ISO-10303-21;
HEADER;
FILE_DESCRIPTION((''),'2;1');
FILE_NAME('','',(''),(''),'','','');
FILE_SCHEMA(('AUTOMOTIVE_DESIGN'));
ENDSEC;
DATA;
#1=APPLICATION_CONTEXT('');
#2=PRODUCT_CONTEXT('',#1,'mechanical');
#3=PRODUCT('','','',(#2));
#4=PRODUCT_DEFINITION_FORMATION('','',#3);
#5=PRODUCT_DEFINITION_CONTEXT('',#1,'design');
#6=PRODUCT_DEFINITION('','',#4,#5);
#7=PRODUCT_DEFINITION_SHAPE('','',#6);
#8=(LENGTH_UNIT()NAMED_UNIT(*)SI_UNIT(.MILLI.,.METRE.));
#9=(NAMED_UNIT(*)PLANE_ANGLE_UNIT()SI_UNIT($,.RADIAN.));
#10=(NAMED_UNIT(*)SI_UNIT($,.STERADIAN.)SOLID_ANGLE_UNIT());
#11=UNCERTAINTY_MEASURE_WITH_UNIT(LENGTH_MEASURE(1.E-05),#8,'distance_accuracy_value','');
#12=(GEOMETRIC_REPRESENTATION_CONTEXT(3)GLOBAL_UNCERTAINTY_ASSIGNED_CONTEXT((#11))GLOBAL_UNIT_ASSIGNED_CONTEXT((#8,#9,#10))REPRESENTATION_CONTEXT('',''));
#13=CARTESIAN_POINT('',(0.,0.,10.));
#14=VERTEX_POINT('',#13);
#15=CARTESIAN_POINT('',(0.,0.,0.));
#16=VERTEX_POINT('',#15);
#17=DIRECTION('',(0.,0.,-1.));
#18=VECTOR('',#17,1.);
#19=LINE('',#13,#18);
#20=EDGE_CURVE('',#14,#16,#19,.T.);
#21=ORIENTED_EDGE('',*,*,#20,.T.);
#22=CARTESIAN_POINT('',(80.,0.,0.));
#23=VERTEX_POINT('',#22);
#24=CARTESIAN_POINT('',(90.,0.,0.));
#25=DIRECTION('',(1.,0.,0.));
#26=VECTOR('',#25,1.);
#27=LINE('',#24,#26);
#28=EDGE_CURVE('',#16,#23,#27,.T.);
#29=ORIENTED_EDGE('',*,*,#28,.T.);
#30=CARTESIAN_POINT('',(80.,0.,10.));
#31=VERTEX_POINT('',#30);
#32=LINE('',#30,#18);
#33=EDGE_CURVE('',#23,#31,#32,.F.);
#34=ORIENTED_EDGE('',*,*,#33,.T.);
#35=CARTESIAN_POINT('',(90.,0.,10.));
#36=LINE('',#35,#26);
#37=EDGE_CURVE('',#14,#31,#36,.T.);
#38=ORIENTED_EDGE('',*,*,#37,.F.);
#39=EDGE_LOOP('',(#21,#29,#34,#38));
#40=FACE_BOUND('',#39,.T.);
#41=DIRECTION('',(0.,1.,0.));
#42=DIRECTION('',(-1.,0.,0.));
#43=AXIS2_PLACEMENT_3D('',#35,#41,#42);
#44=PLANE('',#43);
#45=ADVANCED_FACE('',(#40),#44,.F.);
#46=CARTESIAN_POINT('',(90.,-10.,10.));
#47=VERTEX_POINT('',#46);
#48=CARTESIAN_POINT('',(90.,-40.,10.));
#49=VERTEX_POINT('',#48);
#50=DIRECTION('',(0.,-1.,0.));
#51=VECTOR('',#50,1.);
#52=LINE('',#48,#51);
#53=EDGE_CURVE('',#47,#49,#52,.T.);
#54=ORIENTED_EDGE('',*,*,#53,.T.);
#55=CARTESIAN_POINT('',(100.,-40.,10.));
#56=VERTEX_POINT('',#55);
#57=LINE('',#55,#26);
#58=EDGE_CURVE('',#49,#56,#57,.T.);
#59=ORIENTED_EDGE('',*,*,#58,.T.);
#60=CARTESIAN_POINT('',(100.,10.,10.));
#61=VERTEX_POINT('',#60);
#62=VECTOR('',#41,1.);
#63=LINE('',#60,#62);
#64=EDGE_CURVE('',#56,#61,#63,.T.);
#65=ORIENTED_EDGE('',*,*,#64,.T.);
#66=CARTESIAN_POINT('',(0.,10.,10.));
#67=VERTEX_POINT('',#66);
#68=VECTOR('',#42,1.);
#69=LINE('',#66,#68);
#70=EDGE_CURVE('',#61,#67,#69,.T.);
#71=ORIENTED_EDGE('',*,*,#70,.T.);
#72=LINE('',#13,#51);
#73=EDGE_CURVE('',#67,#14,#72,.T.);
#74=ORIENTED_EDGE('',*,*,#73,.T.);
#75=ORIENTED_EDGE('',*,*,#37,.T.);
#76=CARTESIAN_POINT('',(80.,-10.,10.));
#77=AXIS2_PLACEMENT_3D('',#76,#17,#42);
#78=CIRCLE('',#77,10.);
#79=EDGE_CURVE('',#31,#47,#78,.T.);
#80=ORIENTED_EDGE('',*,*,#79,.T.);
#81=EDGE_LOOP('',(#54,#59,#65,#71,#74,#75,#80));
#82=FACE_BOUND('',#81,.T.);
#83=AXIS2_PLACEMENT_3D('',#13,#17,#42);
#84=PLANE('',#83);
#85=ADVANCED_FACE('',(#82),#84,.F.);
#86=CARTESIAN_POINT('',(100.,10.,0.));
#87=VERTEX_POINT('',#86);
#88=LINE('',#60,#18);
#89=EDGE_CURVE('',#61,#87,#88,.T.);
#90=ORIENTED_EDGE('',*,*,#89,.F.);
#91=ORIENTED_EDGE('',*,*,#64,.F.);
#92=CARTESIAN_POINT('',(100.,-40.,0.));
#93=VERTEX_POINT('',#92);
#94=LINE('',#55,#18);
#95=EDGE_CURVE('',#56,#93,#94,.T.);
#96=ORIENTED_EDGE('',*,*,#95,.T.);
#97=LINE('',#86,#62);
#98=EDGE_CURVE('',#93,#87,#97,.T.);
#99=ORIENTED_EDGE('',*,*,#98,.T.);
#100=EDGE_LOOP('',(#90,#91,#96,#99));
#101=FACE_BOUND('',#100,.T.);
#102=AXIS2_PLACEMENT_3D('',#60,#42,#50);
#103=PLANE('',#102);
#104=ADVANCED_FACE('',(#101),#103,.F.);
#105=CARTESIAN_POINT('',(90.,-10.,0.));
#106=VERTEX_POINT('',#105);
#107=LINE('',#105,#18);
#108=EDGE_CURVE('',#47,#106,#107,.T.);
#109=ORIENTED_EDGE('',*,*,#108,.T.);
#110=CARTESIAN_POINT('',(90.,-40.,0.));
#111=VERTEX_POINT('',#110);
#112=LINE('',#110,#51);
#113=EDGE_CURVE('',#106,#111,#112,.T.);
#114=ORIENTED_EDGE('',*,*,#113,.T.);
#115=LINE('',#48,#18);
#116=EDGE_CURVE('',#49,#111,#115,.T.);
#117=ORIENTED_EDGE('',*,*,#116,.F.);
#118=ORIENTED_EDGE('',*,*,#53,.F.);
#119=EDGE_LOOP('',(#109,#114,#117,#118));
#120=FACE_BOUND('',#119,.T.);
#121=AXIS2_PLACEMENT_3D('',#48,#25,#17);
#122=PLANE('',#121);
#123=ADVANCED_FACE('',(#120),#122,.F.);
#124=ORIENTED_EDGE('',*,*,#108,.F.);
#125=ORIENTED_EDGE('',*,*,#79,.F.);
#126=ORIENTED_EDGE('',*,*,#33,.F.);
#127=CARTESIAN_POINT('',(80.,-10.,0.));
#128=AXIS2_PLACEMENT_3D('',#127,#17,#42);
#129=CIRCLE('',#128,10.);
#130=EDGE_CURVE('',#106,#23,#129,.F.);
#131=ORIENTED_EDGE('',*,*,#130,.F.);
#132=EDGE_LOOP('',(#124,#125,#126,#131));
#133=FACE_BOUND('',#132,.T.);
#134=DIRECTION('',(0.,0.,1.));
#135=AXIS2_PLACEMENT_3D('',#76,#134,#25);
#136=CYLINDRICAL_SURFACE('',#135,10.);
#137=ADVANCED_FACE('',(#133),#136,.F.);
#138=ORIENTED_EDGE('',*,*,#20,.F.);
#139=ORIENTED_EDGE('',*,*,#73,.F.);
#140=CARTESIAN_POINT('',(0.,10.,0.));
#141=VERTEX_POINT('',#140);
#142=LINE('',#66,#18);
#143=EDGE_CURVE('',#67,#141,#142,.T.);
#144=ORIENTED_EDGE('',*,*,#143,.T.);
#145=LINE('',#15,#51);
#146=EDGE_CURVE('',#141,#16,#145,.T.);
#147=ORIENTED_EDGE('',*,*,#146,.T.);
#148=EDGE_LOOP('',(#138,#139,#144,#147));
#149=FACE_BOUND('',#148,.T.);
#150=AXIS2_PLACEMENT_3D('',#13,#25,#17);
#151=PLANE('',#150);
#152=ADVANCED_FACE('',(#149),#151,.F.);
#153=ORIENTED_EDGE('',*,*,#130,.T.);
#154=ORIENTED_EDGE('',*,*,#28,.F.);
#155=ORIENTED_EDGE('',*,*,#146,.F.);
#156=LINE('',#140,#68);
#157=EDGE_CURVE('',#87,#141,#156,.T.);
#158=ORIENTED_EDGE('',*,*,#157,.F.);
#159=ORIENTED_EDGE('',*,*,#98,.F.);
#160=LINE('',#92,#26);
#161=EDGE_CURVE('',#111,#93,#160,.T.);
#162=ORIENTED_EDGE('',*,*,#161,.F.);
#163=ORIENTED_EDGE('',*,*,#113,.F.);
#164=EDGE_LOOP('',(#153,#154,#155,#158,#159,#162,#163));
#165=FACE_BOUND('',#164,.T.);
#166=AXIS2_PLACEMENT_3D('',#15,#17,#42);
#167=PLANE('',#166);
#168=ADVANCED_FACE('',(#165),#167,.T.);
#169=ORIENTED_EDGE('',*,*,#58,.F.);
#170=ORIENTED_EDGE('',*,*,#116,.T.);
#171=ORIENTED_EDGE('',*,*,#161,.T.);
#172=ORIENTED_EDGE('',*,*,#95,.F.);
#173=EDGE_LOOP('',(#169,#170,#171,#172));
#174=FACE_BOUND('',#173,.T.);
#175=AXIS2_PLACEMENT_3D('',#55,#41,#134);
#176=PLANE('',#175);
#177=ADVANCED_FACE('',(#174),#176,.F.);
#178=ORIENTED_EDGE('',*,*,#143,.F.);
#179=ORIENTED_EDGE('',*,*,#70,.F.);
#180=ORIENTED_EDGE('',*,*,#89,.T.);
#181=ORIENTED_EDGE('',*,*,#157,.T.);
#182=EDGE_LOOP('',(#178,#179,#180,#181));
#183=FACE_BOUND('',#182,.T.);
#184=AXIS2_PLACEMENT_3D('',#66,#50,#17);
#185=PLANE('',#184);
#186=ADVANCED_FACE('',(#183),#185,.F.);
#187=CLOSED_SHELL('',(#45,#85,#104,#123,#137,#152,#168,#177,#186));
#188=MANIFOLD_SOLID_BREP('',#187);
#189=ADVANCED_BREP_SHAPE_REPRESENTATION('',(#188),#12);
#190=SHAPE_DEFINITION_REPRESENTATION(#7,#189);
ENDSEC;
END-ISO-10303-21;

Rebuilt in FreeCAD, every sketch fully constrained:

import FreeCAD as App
import Part
import Sketcher


def edges_at(feature, points):
    """Names of the edges that pass closest to the given points."""
    edges = feature.Shape.Edges
    near = lambda p: min(range(len(edges)), key=lambda i: edges[i].distToShape(Part.Vertex(*p))[0])
    return sorted({f"Edge{near(p) + 1}" for p in points})


def add_polygon(sketch, points):
    """Adds a closed chain of lines whose ends are joined by coincident constraints."""
    first, n = sketch.GeometryCount, len(points)
    for a, b in zip(points, points[1:] + points[:1]):
        sketch.addGeometry(Part.LineSegment(App.Vector(*a, 0), App.Vector(*b, 0)), False)
    for i in range(n):
        sketch.addConstraint(Sketcher.Constraint("Coincident", first + i, 2, first + (i + 1) % n, 1))

doc = App.newDocument("Part")
body = doc.addObject("PartDesign::Body", "Body")

sketch1 = body.newObject("Sketcher::SketchObject", "Sketch")
sketch1.AttachmentSupport = (doc.getObject("XY_Plane"), [""])
sketch1.MapMode = "FlatFace"
add_polygon(sketch1, [(0, 10), (0, 0), (90, 0), (90, -40), (100, -40), (100, 10)])
sketch1.addConstraint([
    Sketcher.Constraint("Vertical", 0),
    Sketcher.Constraint("Horizontal", 1),
    Sketcher.Constraint("Vertical", 2),
    Sketcher.Constraint("Horizontal", 3),
    Sketcher.Constraint("Vertical", 4),
    Sketcher.Constraint("Horizontal", 5),
    Sketcher.Constraint("Coincident", 0, 2, -1, 1),
    Sketcher.Constraint("Equal", 3, 0),
    Sketcher.Constraint("DistanceX", 1, 1, 1, 2, 90.0),
    Sketcher.Constraint("DistanceX", 3, 1, 3, 2, 10.0),
    Sketcher.Constraint("DistanceY", 2, 2, 2, 1, 40.0),
])
pad1 = body.newObject("PartDesign::Pad", "Pad")
pad1.Profile = sketch1
pad1.Length = 10
doc.recompute()

fillet = body.newObject("PartDesign::Fillet", "Fillet")
fillet.Base = (pad1, edges_at(pad1, [(90, 0, 5)]))
fillet.Radius = 10

doc.recompute()
